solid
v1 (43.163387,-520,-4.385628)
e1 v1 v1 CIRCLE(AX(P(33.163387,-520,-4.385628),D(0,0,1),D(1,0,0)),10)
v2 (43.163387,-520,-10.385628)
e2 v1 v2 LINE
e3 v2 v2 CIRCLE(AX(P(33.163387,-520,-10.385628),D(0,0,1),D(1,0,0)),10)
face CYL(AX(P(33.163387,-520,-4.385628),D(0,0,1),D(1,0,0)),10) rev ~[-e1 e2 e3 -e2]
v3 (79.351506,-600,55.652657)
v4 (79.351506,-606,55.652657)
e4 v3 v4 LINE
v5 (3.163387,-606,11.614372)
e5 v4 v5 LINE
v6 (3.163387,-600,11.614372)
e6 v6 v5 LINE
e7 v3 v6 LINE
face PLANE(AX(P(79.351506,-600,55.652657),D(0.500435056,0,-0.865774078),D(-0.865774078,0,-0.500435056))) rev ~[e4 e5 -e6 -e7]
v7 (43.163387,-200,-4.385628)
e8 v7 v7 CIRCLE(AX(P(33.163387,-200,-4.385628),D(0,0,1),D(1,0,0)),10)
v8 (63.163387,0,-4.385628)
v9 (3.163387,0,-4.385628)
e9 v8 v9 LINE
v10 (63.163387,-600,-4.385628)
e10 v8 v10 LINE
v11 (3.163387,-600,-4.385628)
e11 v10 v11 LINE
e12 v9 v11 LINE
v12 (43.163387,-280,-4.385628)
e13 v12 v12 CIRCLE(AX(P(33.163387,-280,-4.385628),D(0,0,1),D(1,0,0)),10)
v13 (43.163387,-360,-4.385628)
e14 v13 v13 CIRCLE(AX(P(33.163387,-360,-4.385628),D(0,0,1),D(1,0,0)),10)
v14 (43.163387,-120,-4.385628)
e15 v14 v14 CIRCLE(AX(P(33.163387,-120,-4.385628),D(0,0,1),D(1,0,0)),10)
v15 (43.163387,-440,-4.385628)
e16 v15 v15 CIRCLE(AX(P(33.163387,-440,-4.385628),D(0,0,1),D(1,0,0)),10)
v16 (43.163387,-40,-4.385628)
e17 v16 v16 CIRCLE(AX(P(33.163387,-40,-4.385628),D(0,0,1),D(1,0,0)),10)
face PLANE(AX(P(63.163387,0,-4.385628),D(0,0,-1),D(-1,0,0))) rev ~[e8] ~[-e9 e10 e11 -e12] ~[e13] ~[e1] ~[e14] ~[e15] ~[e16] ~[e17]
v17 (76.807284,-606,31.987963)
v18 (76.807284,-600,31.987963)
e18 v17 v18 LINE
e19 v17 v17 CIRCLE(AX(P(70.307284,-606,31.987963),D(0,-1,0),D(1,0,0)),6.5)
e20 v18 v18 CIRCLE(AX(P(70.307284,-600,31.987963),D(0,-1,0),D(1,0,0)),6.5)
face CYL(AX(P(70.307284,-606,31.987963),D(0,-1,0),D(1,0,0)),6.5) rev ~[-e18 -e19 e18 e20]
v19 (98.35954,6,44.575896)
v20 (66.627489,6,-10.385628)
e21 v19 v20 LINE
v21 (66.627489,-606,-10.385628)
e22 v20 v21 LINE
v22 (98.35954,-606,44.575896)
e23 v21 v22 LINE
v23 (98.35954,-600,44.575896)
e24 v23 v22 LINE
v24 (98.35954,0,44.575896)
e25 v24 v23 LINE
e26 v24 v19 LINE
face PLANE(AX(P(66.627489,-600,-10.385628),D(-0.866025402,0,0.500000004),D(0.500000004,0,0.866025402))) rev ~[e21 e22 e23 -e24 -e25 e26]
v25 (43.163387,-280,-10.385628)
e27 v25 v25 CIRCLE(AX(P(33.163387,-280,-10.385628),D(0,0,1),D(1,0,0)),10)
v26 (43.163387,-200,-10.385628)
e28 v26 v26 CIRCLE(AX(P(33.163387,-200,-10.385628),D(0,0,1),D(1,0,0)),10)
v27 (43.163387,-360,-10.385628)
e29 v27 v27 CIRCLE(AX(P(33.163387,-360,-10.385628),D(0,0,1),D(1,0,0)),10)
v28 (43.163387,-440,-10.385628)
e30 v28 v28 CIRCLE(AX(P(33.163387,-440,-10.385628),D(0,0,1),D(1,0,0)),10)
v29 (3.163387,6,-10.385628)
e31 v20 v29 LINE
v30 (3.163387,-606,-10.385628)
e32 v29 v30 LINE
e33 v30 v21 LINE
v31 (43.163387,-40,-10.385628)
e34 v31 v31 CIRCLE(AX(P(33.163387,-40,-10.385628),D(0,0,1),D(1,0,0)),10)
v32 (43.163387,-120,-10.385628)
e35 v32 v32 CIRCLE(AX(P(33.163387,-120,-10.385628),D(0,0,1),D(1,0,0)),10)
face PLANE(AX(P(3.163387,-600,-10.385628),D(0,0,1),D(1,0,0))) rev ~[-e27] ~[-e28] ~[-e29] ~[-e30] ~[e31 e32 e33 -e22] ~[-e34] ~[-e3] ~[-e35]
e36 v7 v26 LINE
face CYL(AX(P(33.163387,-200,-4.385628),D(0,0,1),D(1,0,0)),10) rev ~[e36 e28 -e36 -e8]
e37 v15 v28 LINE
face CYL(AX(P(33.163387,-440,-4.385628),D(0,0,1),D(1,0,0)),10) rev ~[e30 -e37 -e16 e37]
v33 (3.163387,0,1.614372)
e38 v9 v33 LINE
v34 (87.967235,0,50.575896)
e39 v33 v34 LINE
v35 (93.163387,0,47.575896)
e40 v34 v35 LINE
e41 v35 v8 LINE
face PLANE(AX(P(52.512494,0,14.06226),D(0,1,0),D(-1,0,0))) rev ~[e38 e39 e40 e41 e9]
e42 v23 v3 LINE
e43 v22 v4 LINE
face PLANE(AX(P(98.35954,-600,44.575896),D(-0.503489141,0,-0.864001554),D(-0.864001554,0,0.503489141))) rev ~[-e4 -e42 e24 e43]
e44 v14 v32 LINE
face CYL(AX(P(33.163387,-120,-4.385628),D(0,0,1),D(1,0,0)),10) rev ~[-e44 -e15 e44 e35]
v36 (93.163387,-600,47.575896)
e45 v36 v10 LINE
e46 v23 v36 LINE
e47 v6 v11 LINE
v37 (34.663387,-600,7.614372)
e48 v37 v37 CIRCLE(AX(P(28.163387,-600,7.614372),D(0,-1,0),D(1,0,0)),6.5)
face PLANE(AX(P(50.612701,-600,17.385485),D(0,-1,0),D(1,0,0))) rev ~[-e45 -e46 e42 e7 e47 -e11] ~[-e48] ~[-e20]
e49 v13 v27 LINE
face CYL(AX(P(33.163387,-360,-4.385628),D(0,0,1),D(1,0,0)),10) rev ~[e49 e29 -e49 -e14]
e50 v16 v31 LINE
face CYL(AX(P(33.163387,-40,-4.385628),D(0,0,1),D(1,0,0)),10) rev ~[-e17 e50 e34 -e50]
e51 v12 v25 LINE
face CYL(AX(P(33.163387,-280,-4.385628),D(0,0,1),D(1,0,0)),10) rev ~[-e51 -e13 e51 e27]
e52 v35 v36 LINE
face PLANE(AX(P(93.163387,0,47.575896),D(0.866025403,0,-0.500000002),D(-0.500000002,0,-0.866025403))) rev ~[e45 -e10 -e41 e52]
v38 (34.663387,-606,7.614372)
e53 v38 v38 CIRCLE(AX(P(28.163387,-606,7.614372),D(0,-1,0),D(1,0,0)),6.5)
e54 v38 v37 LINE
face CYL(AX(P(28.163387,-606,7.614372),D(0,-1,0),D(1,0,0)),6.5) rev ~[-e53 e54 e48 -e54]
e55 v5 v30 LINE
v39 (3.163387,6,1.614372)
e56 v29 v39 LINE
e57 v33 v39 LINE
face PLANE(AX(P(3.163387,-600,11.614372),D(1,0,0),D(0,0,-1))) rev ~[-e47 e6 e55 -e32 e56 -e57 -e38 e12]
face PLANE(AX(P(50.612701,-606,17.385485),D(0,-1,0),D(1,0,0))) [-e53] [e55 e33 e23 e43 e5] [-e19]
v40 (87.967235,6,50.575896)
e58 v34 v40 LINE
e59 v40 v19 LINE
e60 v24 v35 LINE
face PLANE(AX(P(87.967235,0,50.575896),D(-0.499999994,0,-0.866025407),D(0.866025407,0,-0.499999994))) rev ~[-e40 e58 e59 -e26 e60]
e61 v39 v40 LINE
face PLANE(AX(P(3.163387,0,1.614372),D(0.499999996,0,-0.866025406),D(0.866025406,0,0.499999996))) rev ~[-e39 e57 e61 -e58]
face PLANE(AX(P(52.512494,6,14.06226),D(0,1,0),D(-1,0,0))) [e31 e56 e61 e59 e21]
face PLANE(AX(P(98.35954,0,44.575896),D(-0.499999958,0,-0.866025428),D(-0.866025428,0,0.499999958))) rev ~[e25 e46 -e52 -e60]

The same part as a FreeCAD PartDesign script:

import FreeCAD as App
import Part
import Sketcher
from FreeCAD import Vector
Q = App.Units.Quantity


def add_polygon(sketch, points):
    """Adds a closed chain of lines whose ends are joined by coincident constraints."""
    first, n = sketch.GeometryCount, len(points)
    for a, b in zip(points, points[1:] + points[:1]):
        sketch.addGeometry(Part.LineSegment(App.Vector(*a, 0), App.Vector(*b, 0)), False)
    for i in range(n):
        sketch.addConstraint(Sketcher.Constraint("Coincident", first + i, 2, first + (i + 1) % n, 1))

doc = App.newDocument("Part")
params = doc.addObject("Spreadsheet::Sheet", "Params")
for row, (alias, value) in enumerate([
    ("sketch1_width", "60 mm"),
    ("sketch1_height", "6 mm"),
    ("sketch1_length", "6 mm"),
    ("sketch1_length2", "60 mm"),
    ("pad1_length", "600 mm"),
    ("sketch2_height", "12 mm"),
    ("sketch2_length", "12 mm"),
    ("pad2_length", "6 mm"),
    ("sketch3_height", "22 mm"),
    ("sketch3_length", "22 mm"),
    ("sketch3_length2", "88 mm"),
    ("pad3_length", "6 mm"),
    ("sketch4_diameter", "13 mm"),
    ("pocket1_length", "25 mm"),
    ("sketch5_diameter", "20 mm"),
    ("pocket2_length", "25 mm"),
], start=1):
    params.set(f"A{row}", alias)
    params.set(f"B{row}", "=" + value)
    params.setAlias(f"B{row}", alias)

body = doc.addObject("PartDesign::Body", "Body")

sketch1 = body.newObject("Sketcher::SketchObject", "Sketch")
sketch1.AttachmentSupport = (doc.getObject("XZ_Plane"), [""])
sketch1.MapMode = "FlatFace"
add_polygon(sketch1, [(3.163387, -4.385628), (3.163387, -10.385628), (66.627489, -10.385628), (98.35954, 44.575896), (93.163387, 47.575896), (63.163387, -4.385628)])
sketch1.addConstraint([
    Sketcher.Constraint("Vertical", 0),
    Sketcher.Constraint("Horizontal", 1),
    Sketcher.Constraint("Horizontal", 5),
    Sketcher.Constraint("Perpendicular", 2, 3),
    Sketcher.Constraint("Perpendicular", 3, 4),
    Sketcher.Constraint("DistanceX", 5, 2, 5, 1, Q("60 mm")),
    Sketcher.Constraint("DistanceY", 0, 2, 0, 1, Q("6 mm")),
    Sketcher.Constraint("Angle", 2, Q("60 deg")),
    Sketcher.Constraint("Distance", 3, Q("6 mm")),
    Sketcher.Constraint("Distance", 4, Q("60 mm")),
    Sketcher.Constraint("DistanceX", -1, 1, 1, 2, Q("66.627489 mm")),
    Sketcher.Constraint("DistanceY", 0, 2, -1, 1, Q("10.385628 mm")),
])
sketch1.setExpression("Constraints[11]", "Params.sketch1_width")
sketch1.setExpression("Constraints[12]", "Params.sketch1_height")
sketch1.setExpression("Constraints[14]", "Params.sketch1_length")
sketch1.setExpression("Constraints[15]", "Params.sketch1_length2")
pad1 = body.newObject("PartDesign::Pad", "Pad")
pad1.Profile = sketch1
pad1.setExpression("Length", "Params.pad1_length")

sketch2 = body.newObject("Sketcher::SketchObject", "Sketch001")
sketch2.AttachmentSupport = (doc.getObject("XZ_Plane"), [""])
sketch2.MapMode = "FlatFace"
add_polygon(sketch2, [(3.163387, -10.385628), (3.163387, 1.614372), (87.967235, 50.575896), (98.35954, 44.575896), (66.627489, -10.385628)])
sketch2.addConstraint([
    Sketcher.Constraint("Vertical", 0),
    Sketcher.Constraint("Horizontal", 4),
    Sketcher.Constraint("Perpendicular", 2, 3),
    Sketcher.Constraint("DistanceY", 0, 1, 0, 2, Q("12 mm")),
    Sketcher.Constraint("Angle", 1, Q("30 deg")),
    Sketcher.Constraint("Angle", 2, Q("-30 deg")),
    Sketcher.Constraint("Distance", 2, Q("12 mm")),
    Sketcher.Constraint("DistanceX", 4, 2, 4, 1, Q("63.464102 mm")),
    Sketcher.Constraint("DistanceY", -1, 1, 0, 2, Q("1.614372 mm")),
    Sketcher.Constraint("DistanceX", -1, 1, 2, 2, Q("98.35954 mm")),
])
sketch2.setExpression("Constraints[8]", "Params.sketch2_height")
sketch2.setExpression("Constraints[11]", "Params.sketch2_length")
pad2 = body.newObject("PartDesign::Pad", "Pad001")
pad2.Profile = sketch2
pad2.setExpression("Length", "Params.pad2_length")
pad2.Reversed = True

sketch3 = body.newObject("Sketcher::SketchObject", "Sketch002")
sketch3.AttachmentSupport = (doc.getObject("XZ_Plane"), [""])
sketch3.MapMode = "FlatFace"
sketch3.AttachmentOffset = App.Placement(Vector(0, 0, 600), App.Rotation())
add_polygon(sketch3, [(3.163387, 11.614372), (3.163387, -10.385628), (66.627489, -10.385628), (98.35954, 44.575896), (79.351506, 55.652657)])
sketch3.addConstraint([
    Sketcher.Constraint("Vertical", 0),
    Sketcher.Constraint("Horizontal", 1),
    Sketcher.Constraint("DistanceY", 0, 2, 0, 1, Q("22 mm")),
    Sketcher.Constraint("Angle", 2, Q("60 deg")),
    Sketcher.Constraint("Distance", 3, Q("22 mm")),
    Sketcher.Constraint("Distance", 4, Q("88 mm")),
    Sketcher.Constraint("DistanceX", 1, 1, 1, 2, Q("63.464102 mm")),
    Sketcher.Constraint("Distance", 2, Q("63.464102 mm")),
    Sketcher.Constraint("DistanceX", -1, 1, 1, 2, Q("66.627489 mm")),
    Sketcher.Constraint("DistanceY", 0, 2, -1, 1, Q("10.385628 mm")),
])
sketch3.setExpression("Constraints[7]", "Params.sketch3_height")
sketch3.setExpression("Constraints[9]", "Params.sketch3_length")
sketch3.setExpression("Constraints[10]", "Params.sketch3_length2")
pad3 = body.newObject("PartDesign::Pad", "Pad002")
pad3.Profile = sketch3
pad3.setExpression("Length", "Params.pad3_length")

sketch4 = body.newObject("Sketcher::SketchObject", "Sketch003")
sketch4.AttachmentSupport = (doc.getObject("XZ_Plane"), [""])
sketch4.MapMode = "FlatFace"
sketch4.AttachmentOffset = App.Placement(Vector(0, 0, 606), App.Rotation())
sketch4.addGeometry([
    Part.Circle(Vector(70.307284, 31.987963, 0), Vector(0, 0, 1), 6.5),
    Part.Circle(Vector(28.163387, 7.614372, 0), Vector(0, 0, 1), 6.5),
], False)
sketch4.addConstraint([
    Sketcher.Constraint("Equal", 0, 1),
    Sketcher.Constraint("Diameter", 0, Q("13 mm")),
    Sketcher.Constraint("DistanceY", 1, 3, 0, 3, Q("24.373591 mm")),
    Sketcher.Constraint("DistanceX", -1, 1, 0, 3, Q("70.307284 mm")),
    Sketcher.Constraint("DistanceY", -1, 1, 0, 3, Q("31.987963 mm")),
    Sketcher.Constraint("DistanceX", -1, 1, 1, 3, Q("28.163387 mm")),
])
sketch4.setExpression("Constraints[1]", "Params.sketch4_diameter")
pocket1 = body.newObject("PartDesign::Pocket", "Pocket")
pocket1.Profile = sketch4
pocket1.setExpression("Length", "Params.pocket1_length")

sketch5 = body.newObject("Sketcher::SketchObject", "Sketch004")
sketch5.AttachmentSupport = (doc.getObject("XY_Plane"), [""])
sketch5.MapMode = "FlatFace"
sketch5.AttachmentOffset = App.Placement(Vector(0, 0, -4.385628), App.Rotation())
sketch5.addGeometry([
    Part.Circle(Vector(33.163387, -40, 0), Vector(0, 0, 1), 10),
    Part.Circle(Vector(33.163387, -120, 0), Vector(0, 0, 1), 10),
    Part.Circle(Vector(33.163387, -200, 0), Vector(0, 0, 1), 10),
    Part.Circle(Vector(33.163387, -280, 0), Vector(0, 0, 1), 10),
    Part.Circle(Vector(33.163387, -360, 0), Vector(0, 0, 1), 10),
    Part.Circle(Vector(33.163387, -440, 0), Vector(0, 0, 1), 10),
    Part.Circle(Vector(33.163387, -520, 0), Vector(0, 0, 1), 10),
], False)
sketch5.addConstraint([
    Sketcher.Constraint("Equal", 0, 1),
    Sketcher.Constraint("Equal", 1, 2),
    Sketcher.Constraint("Equal", 2, 3),
    Sketcher.Constraint("Equal", 3, 4),
    Sketcher.Constraint("Equal", 4, 5),
    Sketcher.Constraint("Equal", 5, 6),
    Sketcher.Constraint("Vertical", 0, 3, 1, 3),
    Sketcher.Constraint("Vertical", 1, 3, 2, 3),
    Sketcher.Constraint("Vertical", 2, 3, 3, 3),
    Sketcher.Constraint("Vertical", 3, 3, 4, 3),
    Sketcher.Constraint("Vertical", 4, 3, 5, 3),
    Sketcher.Constraint("Vertical", 5, 3, 6, 3),
    Sketcher.Constraint("Diameter", 0, Q("20 mm")),
    Sketcher.Constraint("DistanceY", 0, 3, -1, 1, Q("40 mm")),
    Sketcher.Constraint("DistanceY", 1, 3, -1, 1, Q("120 mm")),
    Sketcher.Constraint("DistanceY", 2, 3, -1, 1, Q("200 mm")),
    Sketcher.Constraint("DistanceY", 3, 3, -1, 1, Q("280 mm")),
    Sketcher.Constraint("DistanceY", 4, 3, -1, 1, Q("360 mm")),
    Sketcher.Constraint("DistanceY", 5, 3, -1, 1, Q("440 mm")),
    Sketcher.Constraint("DistanceY", 6, 3, -1, 1, Q("520 mm")),
    Sketcher.Constraint("DistanceX", -1, 1, 0, 3, Q("33.163387 mm")),
])
sketch5.setExpression("Constraints[12]", "Params.sketch5_diameter")
pocket2 = body.newObject("PartDesign::Pocket", "Pocket001")
pocket2.Profile = sketch5
pocket2.setExpression("Length", "Params.pocket2_length")

doc.recompute()
